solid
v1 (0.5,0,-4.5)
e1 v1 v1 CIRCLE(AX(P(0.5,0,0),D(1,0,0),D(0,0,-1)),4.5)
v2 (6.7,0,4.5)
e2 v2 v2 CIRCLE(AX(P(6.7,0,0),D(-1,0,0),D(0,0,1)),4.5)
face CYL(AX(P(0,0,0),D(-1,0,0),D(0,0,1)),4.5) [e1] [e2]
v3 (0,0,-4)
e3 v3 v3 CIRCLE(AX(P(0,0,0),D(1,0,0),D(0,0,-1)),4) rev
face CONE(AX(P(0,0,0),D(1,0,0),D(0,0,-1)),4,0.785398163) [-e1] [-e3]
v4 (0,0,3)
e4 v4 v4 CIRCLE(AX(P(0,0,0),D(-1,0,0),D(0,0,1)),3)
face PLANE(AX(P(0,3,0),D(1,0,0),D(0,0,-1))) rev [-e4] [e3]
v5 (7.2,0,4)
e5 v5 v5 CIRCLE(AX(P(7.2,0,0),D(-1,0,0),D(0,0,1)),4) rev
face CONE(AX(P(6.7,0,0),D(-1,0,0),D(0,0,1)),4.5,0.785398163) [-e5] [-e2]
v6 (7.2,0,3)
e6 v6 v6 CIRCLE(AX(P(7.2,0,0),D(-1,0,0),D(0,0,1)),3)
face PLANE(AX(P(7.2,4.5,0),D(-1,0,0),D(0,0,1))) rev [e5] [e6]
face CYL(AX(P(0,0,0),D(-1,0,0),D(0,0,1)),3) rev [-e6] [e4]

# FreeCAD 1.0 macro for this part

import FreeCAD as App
import Part
import Sketcher
Q = App.Units.Quantity


def edges_at(feature, points):
    """Names of the edges that pass closest to the given points."""
    edges = feature.Shape.Edges
    near = lambda p: min(range(len(edges)), key=lambda i: edges[i].distToShape(Part.Vertex(*p))[0])
    return sorted({f"Edge{near(p) + 1}" for p in points})


def add_polygon(sketch, points):
    """Adds a closed chain of lines whose ends are joined by coincident constraints."""
    first, n = sketch.GeometryCount, len(points)
    for a, b in zip(points, points[1:] + points[:1]):
        sketch.addGeometry(Part.LineSegment(App.Vector(*a, 0), App.Vector(*b, 0)), False)
    for i in range(n):
        sketch.addConstraint(Sketcher.Constraint("Coincident", first + i, 2, first + (i + 1) % n, 1))

doc = App.newDocument("Part")
body = doc.addObject("PartDesign::Body", "Body")

# Sketch on XY plane
sketch1 = body.newObject("Sketcher::SketchObject", "Sketch")
sketch1.AttachmentSupport = (doc.getObject("XY_Plane"), [""])
sketch1.MapMode = "FlatFace"
add_polygon(sketch1, [(0, 4.5), (0, 3), (7.2, 3), (7.2, 4.5)])  # lines 0-3
sketch1.addConstraint([
    Sketcher.Constraint("Vertical", 0),
    Sketcher.Constraint("Horizontal", 1),
    Sketcher.Constraint("Vertical", 2),
    Sketcher.Constraint("Horizontal", 3),
    Sketcher.Constraint("PointOnObject", 0, 2, -2),
    Sketcher.Constraint("DistanceX", 1, 1, 1, 2, Q("7.2 mm")),
    Sketcher.Constraint("DistanceY", 0, 2, 0, 1, Q("1.5 mm")),
    Sketcher.Constraint("DistanceY", -1, 1, 0, 2, Q("3 mm")),
])
revolution = body.newObject("PartDesign::Revolution", "Revolution")
revolution.Profile = sketch1
revolution.ReferenceAxis = (sketch1, ["H_Axis"])
revolution.Angle = 360
doc.recompute()

chamfer = body.newObject("PartDesign::Chamfer", "Chamfer")
chamfer.Base = (revolution, edges_at(revolution, [(7.2, -4.5, 0), (0, -4.5, 0)]))
chamfer.Size = 0.5

doc.recompute()
